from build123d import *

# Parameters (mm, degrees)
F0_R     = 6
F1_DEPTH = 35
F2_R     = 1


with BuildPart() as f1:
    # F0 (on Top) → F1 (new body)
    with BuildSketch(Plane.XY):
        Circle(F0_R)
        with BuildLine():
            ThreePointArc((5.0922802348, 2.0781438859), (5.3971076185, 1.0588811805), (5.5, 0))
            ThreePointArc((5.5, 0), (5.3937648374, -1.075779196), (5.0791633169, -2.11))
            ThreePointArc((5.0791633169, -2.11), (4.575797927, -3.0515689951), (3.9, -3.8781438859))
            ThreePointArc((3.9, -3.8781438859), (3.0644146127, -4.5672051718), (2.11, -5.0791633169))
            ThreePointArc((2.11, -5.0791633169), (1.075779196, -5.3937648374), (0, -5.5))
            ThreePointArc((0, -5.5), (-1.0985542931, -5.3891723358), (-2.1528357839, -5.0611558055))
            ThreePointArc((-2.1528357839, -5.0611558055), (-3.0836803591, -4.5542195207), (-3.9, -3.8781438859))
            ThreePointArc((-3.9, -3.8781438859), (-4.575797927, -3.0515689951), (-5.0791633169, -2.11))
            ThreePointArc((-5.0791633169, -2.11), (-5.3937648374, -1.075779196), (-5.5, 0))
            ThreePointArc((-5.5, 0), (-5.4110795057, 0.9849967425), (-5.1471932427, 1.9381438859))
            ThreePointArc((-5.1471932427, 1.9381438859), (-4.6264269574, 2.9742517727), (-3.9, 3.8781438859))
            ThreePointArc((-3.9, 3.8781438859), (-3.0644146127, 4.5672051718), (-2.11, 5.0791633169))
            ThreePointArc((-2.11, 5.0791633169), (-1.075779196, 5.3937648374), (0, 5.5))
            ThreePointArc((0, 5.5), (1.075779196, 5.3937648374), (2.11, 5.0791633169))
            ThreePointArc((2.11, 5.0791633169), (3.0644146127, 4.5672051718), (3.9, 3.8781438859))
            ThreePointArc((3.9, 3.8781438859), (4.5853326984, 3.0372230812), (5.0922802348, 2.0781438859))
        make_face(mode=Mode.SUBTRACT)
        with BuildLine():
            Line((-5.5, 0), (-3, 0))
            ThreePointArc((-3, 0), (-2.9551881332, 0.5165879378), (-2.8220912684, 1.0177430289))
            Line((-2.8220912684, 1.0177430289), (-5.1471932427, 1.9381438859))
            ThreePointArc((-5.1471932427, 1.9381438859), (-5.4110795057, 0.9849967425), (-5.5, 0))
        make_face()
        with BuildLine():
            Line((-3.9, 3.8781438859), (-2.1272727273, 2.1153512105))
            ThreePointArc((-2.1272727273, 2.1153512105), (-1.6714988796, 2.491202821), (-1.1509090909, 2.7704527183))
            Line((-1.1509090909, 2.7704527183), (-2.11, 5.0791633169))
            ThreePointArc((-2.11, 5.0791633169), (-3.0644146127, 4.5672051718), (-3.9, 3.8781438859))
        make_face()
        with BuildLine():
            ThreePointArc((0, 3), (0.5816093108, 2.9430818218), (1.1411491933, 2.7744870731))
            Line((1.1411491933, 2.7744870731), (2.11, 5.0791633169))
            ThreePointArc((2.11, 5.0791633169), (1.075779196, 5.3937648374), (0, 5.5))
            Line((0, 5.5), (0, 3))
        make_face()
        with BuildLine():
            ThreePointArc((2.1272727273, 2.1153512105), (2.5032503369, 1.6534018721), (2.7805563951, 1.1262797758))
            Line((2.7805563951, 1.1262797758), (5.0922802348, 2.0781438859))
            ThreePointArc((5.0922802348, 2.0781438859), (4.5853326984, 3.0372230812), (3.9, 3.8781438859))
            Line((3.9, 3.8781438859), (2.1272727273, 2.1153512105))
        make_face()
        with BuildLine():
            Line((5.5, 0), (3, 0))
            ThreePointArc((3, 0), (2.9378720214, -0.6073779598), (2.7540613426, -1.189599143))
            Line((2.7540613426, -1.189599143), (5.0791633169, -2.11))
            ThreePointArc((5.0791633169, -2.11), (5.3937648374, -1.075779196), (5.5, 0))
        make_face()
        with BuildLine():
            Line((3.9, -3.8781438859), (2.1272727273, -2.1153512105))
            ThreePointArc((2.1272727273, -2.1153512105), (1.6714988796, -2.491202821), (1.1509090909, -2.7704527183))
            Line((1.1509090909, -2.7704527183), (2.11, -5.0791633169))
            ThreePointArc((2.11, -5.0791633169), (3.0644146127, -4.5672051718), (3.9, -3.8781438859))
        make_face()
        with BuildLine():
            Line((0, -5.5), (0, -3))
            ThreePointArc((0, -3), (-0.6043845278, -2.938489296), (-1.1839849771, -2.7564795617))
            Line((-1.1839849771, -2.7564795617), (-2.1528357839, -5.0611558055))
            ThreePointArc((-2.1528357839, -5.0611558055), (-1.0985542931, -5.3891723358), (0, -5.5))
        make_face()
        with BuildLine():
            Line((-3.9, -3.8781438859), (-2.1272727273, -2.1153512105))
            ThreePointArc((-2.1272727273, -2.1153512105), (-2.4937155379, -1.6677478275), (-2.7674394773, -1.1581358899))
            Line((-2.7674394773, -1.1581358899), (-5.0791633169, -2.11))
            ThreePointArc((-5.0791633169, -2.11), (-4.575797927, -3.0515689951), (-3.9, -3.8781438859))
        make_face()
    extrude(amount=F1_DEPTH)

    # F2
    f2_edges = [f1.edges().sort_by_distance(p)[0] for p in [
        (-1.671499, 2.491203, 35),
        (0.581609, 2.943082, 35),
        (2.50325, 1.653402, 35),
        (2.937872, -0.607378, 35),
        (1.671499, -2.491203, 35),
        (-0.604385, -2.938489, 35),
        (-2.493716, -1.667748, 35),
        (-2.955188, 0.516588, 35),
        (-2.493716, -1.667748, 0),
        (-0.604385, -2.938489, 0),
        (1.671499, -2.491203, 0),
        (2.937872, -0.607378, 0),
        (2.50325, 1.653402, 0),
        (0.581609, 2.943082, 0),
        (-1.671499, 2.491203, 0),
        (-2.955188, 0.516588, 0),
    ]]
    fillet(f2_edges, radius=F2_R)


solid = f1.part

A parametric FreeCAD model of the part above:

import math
import FreeCAD as App
import Part
import Sketcher

V = App.Vector


def edges_at(feature, points):
    """Names of the edges that pass closest to the given points."""
    edges = feature.Shape.Edges
    near = lambda p: min(range(len(edges)), key=lambda i: edges[i].distToShape(Part.Vertex(*p))[0])
    return sorted({f"Edge{near(p) + 1}" for p in points})

doc = App.newDocument("Part")
body = doc.addObject("PartDesign::Body", "Body")

sketch1 = doc.addObject("Sketcher::SketchObject", "Sketch")
body.addObject(sketch1)
sketch1.AttachmentSupport = (doc.XY_Plane, [""])
sketch1.MapMode = "FlatFace"
sketch1.addGeometry([
    Part.Circle(V(0, 0, 0), V(0, 0, 1), 6),
    Part.ArcOfCircle(Part.Circle(V(0, 0, 0), V(0, 0, 1), 5.5), math.radians(0), math.radians(22.20022)),
    Part.LineSegment(V(5.5, 0, 0), V(3, 0, 0)),
    Part.ArcOfCircle(Part.Circle(V(0, 0, 0), V(0, 0, 1), 3), math.radians(-23.361621), math.radians(0)),
    Part.LineSegment(V(2.754061, -1.189599, 0), V(5.079163, -2.11, 0)),
    Part.ArcOfCircle(Part.Circle(V(0, 0, 0), V(0, 0, 1), 5.5), math.radians(-44.839003), math.radians(-22.55911)),
    Part.LineSegment(V(3.9, -3.878144, 0), V(2.127273, -2.115351, 0)),
    Part.ArcOfCircle(Part.Circle(V(0, 0, 0), V(0, 0, 1), 3), math.radians(-67.44089), math.radians(-44.839003)),
    Part.LineSegment(V(1.150909, -2.770453, 0), V(2.11, -5.079163, 0)),
    Part.ArcOfCircle(Part.Circle(V(0, 0, 0), V(0, 0, 1), 5.5), math.radians(-90), math.radians(-67.44089)),
    Part.LineSegment(V(0, -5.5, 0), V(0, -3, 0)),
    Part.ArcOfCircle(Part.Circle(V(0, 0, 0), V(0, 0, 1), 3), math.radians(-113.244874), math.radians(-90)),
    Part.LineSegment(V(-1.183985, -2.75648, 0), V(-2.152836, -5.061156, 0)),
    Part.ArcOfCircle(Part.Circle(V(0, 0, 0), V(0, 0, 1), 5.5), math.radians(-135.160997), math.radians(-113.043177)),
    Part.LineSegment(V(-3.9, -3.878144, 0), V(-2.127273, -2.115351, 0)),
    Part.ArcOfCircle(Part.Circle(V(0, 0, 0), V(0, 0, 1), 3), math.radians(-157.291351), math.radians(-135.160997)),
    Part.LineSegment(V(-2.767439, -1.158136, 0), V(-5.079163, -2.11, 0)),
    Part.ArcOfCircle(Part.Circle(V(0, 0, 0), V(0, 0, 1), 5.5), math.radians(180), math.radians(202.55911)),
    Part.LineSegment(V(-5.5, 0, 0), V(-3, 0, 0)),
    Part.ArcOfCircle(Part.Circle(V(0, 0, 0), V(0, 0, 1), 3), math.radians(160.168955), math.radians(180)),
    Part.LineSegment(V(-2.822091, 1.017743, 0), V(-5.147193, 1.938144, 0)),
    Part.ArcOfCircle(Part.Circle(V(0, 0, 0), V(0, 0, 1), 5.5), math.radians(135.160997), math.radians(159.366444)),
    Part.LineSegment(V(-3.9, 3.878144, 0), V(-2.127273, 2.115351, 0)),
    Part.ArcOfCircle(Part.Circle(V(0, 0, 0), V(0, 0, 1), 3), math.radians(112.55911), math.radians(135.160997)),
    Part.LineSegment(V(-1.150909, 2.770453, 0), V(-2.11, 5.079163, 0)),
    Part.ArcOfCircle(Part.Circle(V(0, 0, 0), V(0, 0, 1), 5.5), math.radians(90), math.radians(112.55911)),
    Part.LineSegment(V(0, 5.5, 0), V(0, 3, 0)),
    Part.ArcOfCircle(Part.Circle(V(0, 0, 0), V(0, 0, 1), 3), math.radians(67.642587), math.radians(90)),
    Part.LineSegment(V(1.141149, 2.774487, 0), V(2.11, 5.079163, 0)),
    Part.ArcOfCircle(Part.Circle(V(0, 0, 0), V(0, 0, 1), 5.5), math.radians(44.839003), math.radians(67.44089)),
    Part.LineSegment(V(3.9, 3.878144, 0), V(2.127273, 2.115351, 0)),
    Part.ArcOfCircle(Part.Circle(V(0, 0, 0), V(0, 0, 1), 3), math.radians(22.050681), math.radians(44.839003)),
    Part.LineSegment(V(2.780556, 1.12628, 0), V(5.09228, 2.078144, 0)),
], False)
sketch1.addConstraint([
    Sketcher.Constraint("Coincident", 1, 1, 2, 1),
    Sketcher.Constraint("Coincident", 2, 2, 3, 2),
    Sketcher.Constraint("Coincident", 3, 1, 4, 1),
    Sketcher.Constraint("Coincident", 4, 2, 5, 2),
    Sketcher.Constraint("Coincident", 5, 1, 6, 1),
    Sketcher.Constraint("Coincident", 6, 2, 7, 2),
    Sketcher.Constraint("Coincident", 7, 1, 8, 1),
    Sketcher.Constraint("Coincident", 8, 2, 9, 2),
    Sketcher.Constraint("Coincident", 9, 1, 10, 1),
    Sketcher.Constraint("Coincident", 10, 2, 11, 2),
    Sketcher.Constraint("Coincident", 11, 1, 12, 1),
    Sketcher.Constraint("Coincident", 12, 2, 13, 2),
    Sketcher.Constraint("Coincident", 13, 1, 14, 1),
    Sketcher.Constraint("Coincident", 14, 2, 15, 2),
    Sketcher.Constraint("Coincident", 15, 1, 16, 1),
    Sketcher.Constraint("Coincident", 16, 2, 17, 2),
    Sketcher.Constraint("Coincident", 17, 1, 18, 1),
    Sketcher.Constraint("Coincident", 18, 2, 19, 2),
    Sketcher.Constraint("Coincident", 19, 1, 20, 1),
    Sketcher.Constraint("Coincident", 20, 2, 21, 2),
    Sketcher.Constraint("Coincident", 21, 1, 22, 1),
    Sketcher.Constraint("Coincident", 22, 2, 23, 2),
    Sketcher.Constraint("Coincident", 23, 1, 24, 1),
    Sketcher.Constraint("Coincident", 24, 2, 25, 2),
    Sketcher.Constraint("Coincident", 25, 1, 26, 1),
    Sketcher.Constraint("Coincident", 26, 2, 27, 2),
    Sketcher.Constraint("Coincident", 27, 1, 28, 1),
    Sketcher.Constraint("Coincident", 28, 2, 29, 2),
    Sketcher.Constraint("Coincident", 29, 1, 30, 1),
    Sketcher.Constraint("Coincident", 30, 2, 31, 2),
    Sketcher.Constraint("Coincident", 31, 1, 32, 1),
    Sketcher.Constraint("Coincident", 32, 2, 1, 2),
    Sketcher.Constraint("Horizontal", 2),
    Sketcher.Constraint("Vertical", 10),
    Sketcher.Constraint("Horizontal", 18),
    Sketcher.Constraint("Vertical", 26),
    Sketcher.Constraint("Coincident", 0, 3, -1, 1),
    Sketcher.Constraint("Coincident", 1, 3, -1, 1),
    Sketcher.Constraint("Coincident", 3, 3, -1, 1),
    Sketcher.Constraint("Coincident", 5, 3, -1, 1),
    Sketcher.Constraint("Coincident", 7, 3, -1, 1),
    Sketcher.Constraint("Coincident", 9, 3, -1, 1),
    Sketcher.Constraint("Coincident", 11, 3, -1, 1),
    Sketcher.Constraint("Coincident", 13, 3, -1, 1),
    Sketcher.Constraint("Coincident", 15, 3, -1, 1),
    Sketcher.Constraint("Coincident", 17, 3, -1, 1),
    Sketcher.Constraint("Coincident", 19, 3, -1, 1),
    Sketcher.Constraint("Coincident", 21, 3, -1, 1),
    Sketcher.Constraint("Coincident", 23, 3, -1, 1),
    Sketcher.Constraint("Coincident", 25, 3, -1, 1),
    Sketcher.Constraint("Coincident", 27, 3, -1, 1),
    Sketcher.Constraint("Coincident", 29, 3, -1, 1),
    Sketcher.Constraint("Coincident", 31, 3, -1, 1),
    Sketcher.Constraint("Equal", 1, 5),
    Sketcher.Constraint("Equal", 3, 7),
    Sketcher.Constraint("Equal", 5, 9),
    Sketcher.Constraint("Equal", 7, 11),
    Sketcher.Constraint("Equal", 9, 13),
    Sketcher.Constraint("Equal", 11, 15),
    Sketcher.Constraint("Equal", 13, 17),
    Sketcher.Constraint("Equal", 15, 19),
    Sketcher.Constraint("Equal", 17, 21),
    Sketcher.Constraint("Equal", 19, 23),
    Sketcher.Constraint("Equal", 21, 25),
    Sketcher.Constraint("Equal", 23, 27),
    Sketcher.Constraint("Equal", 25, 29),
    Sketcher.Constraint("Equal", 27, 31),
    Sketcher.Constraint("PointOnObject", 1, 1, -1),
    Sketcher.Constraint("PointOnObject", 9, 1, -2),
    Sketcher.Constraint("PointOnObject", 17, 1, -1),
    Sketcher.Constraint("PointOnObject", 25, 1, -2),
    Sketcher.Constraint("Parallel", 4, 20),
    Sketcher.Constraint("Parallel", 6, 22),
    Sketcher.Constraint("Parallel", 8, 24),
    Sketcher.Constraint("Parallel", 12, 28),
    Sketcher.Constraint("Parallel", 14, 30),
    Sketcher.Constraint("Parallel", 16, 32),
    Sketcher.Constraint("Horizontal", 5, 1, 13, 1),
    Sketcher.Constraint("Horizontal", 6, 2, 14, 2),
    Sketcher.Constraint("Horizontal", 4, 2, 16, 2),
    Sketcher.Constraint("Horizontal", 24, 2, 28, 2),
    Sketcher.Constraint("Horizontal", 21, 1, 29, 1),
    Sketcher.Constraint("Vertical", 13, 1, 21, 1),
    Sketcher.Constraint("Vertical", 8, 2, 28, 2),
    Sketcher.Constraint("Equal", 4, 20),
    Sketcher.Constraint("Equal", 12, 28),
    Sketcher.Constraint("Equal", 16, 32),
    Sketcher.Constraint("Diameter", 0, 12.0),
    Sketcher.Constraint("Radius", 3, 3.0),
    Sketcher.Constraint("Radius", 1, 5.5),
    Sketcher.Constraint("DistanceX", -1, 1, 5, 1, 3.9),
    Sketcher.Constraint("DistanceY", 32, 2, 29, 1, 1.8),
    Sketcher.Constraint("DistanceY", 4, 2, -1, 1, 2.11),
    Sketcher.Constraint("DistanceX", -1, 1, 8, 2, 2.11),
    Sketcher.Constraint("DistanceY", 20, 2, 21, 1, 1.94),
    Sketcher.Constraint("DistanceY", 7, 1, 6, 2, 0.655102),
    Sketcher.Constraint("DistanceY", 6, 2, -1, 1, 2.115351),
    Sketcher.Constraint("DistanceY", 11, 1, -1, 1, 2.75648),
])
pad1 = doc.addObject("PartDesign::Pad", "Pad")
body.addObject(pad1)
pad1.Profile = sketch1
pad1.Length = 35
doc.recompute()

fillet = doc.addObject("PartDesign::Fillet", "Fillet")
body.addObject(fillet)
fillet.Base = (pad1, edges_at(pad1, [
    (-1.671, 2.491, 35),
    (0.582, 2.943, 35),
    (2.503, 1.653, 35),
    (2.938, -0.607, 35),
    (1.671, -2.491, 35),
    (-0.604, -2.938, 35),
    (-2.494, -1.668, 35),
    (-2.955, 0.517, 35),
    (-2.494, -1.668, 0),
    (-0.604, -2.938, 0),
    (1.671, -2.491, 0),
    (2.938, -0.607, 0),
    (2.503, 1.653, 0),
    (0.582, 2.943, 0),
    (-1.671, 2.491, 0),
    (-2.955, 0.517, 0),
]))
fillet.Radius = 1

doc.recompute()
